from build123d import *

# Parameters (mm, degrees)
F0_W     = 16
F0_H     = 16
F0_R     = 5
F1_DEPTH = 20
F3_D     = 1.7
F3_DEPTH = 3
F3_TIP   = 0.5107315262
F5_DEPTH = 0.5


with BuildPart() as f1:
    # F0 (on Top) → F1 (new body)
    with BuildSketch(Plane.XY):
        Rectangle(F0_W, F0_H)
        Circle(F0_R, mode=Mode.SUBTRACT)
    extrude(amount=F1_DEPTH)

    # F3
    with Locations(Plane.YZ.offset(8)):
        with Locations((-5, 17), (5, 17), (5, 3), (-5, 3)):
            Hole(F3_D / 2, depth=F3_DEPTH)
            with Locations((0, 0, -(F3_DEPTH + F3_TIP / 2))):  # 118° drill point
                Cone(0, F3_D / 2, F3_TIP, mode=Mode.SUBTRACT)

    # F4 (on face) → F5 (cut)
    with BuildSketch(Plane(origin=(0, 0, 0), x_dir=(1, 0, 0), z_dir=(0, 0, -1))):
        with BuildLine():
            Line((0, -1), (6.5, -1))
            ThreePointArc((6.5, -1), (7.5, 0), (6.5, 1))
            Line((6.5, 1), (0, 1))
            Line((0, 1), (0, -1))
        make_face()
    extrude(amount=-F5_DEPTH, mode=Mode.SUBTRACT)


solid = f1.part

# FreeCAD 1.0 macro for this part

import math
import FreeCAD as App
import Part
import Sketcher
Q = App.Units.Quantity


def add_polygon(sketch, points):
    """Adds a closed chain of lines whose ends are joined by coincident constraints."""
    first, n = sketch.GeometryCount, len(points)
    for a, b in zip(points, points[1:] + points[:1]):
        sketch.addGeometry(Part.LineSegment(App.Vector(*a, 0), App.Vector(*b, 0)), False)
    for i in range(n):
        sketch.addConstraint(Sketcher.Constraint("Coincident", first + i, 2, first + (i + 1) % n, 1))

doc = App.newDocument("Part")
body = doc.addObject("PartDesign::Body", "Body")

# Sketch on XY plane
sketch1 = body.newObject("Sketcher::SketchObject", "Sketch")
sketch1.AttachmentSupport = (doc.getObject("XY_Plane"), [""])
sketch1.MapMode = "FlatFace"
add_polygon(sketch1, [(-8, 8), (-8, -8), (8, -8), (8, 8)])  # lines 0-3
sketch1.addGeometry(Part.Circle(App.Vector(0, 0, 0), App.Vector(0, 0, 1), 5), False)  # 4
sketch1.addConstraint([
    Sketcher.Constraint("Vertical", 0),
    Sketcher.Constraint("Horizontal", 1),
    Sketcher.Constraint("Vertical", 2),
    Sketcher.Constraint("Horizontal", 3),
    Sketcher.Constraint("Coincident", 4, 3, -1, 1),
    Sketcher.Constraint("Symmetric", 0, 2, 2, 2, -1, 1),
    Sketcher.Constraint("Equal", 3, 0),
    Sketcher.Constraint("Diameter", 4, Q("10 mm")),
    Sketcher.Constraint("DistanceX", 1, 1, 1, 2, Q("16 mm")),
])
pad1 = body.newObject("PartDesign::Pad", "Pad")
pad1.Profile = sketch1
pad1.Length = 20

# Sketch on YZ plane
sketch2 = body.newObject("Sketcher::SketchObject", "Sketch001")
sketch2.AttachmentSupport = (doc.getObject("YZ_Plane"), [""])
sketch2.MapMode = "FlatFace"
sketch2.AttachmentOffset = App.Placement(App.Vector(0, 0, 8), App.Rotation())
sketch2.addGeometry([
    Part.Circle(App.Vector(-5, 17, 0), App.Vector(0, 0, 1), 0.8),
    Part.Circle(App.Vector(5, 17, 0), App.Vector(0, 0, 1), 0.8),
    Part.Circle(App.Vector(5, 3, 0), App.Vector(0, 0, 1), 0.8),
    Part.Circle(App.Vector(-5, 3, 0), App.Vector(0, 0, 1), 0.8),
], False)
sketch2.addConstraint([
    Sketcher.Constraint("Equal", 0, 1),
    Sketcher.Constraint("Equal", 1, 2),
    Sketcher.Constraint("Equal", 2, 3),
    Sketcher.Constraint("Symmetric", 0, 3, 1, 3, -2),
    Sketcher.Constraint("Symmetric", 2, 3, 3, 3, -2),
    Sketcher.Constraint("Vertical", 1, 3, 2, 3),
    Sketcher.Constraint("Diameter", 0, Q("1.7 mm")),
    Sketcher.Constraint("DistanceX", 0, 3, -1, 1, Q("5 mm")),
    Sketcher.Constraint("DistanceY", -1, 1, 0, 3, Q("17 mm")),
    Sketcher.Constraint("DistanceY", -1, 1, 2, 3, Q("3 mm")),
])
doc.recompute()
hole = body.newObject("PartDesign::Hole", "Hole")
hole.Profile = sketch2
hole.ThreadType = "None"
hole.Diameter = 1.7
hole.DepthType = "Dimension"
hole.Depth = 3
hole.DrillPoint = "Angled"
hole.DrillPointAngle = 118

# Sketch on XY plane
sketch3 = body.newObject("Sketcher::SketchObject", "Sketch002")
sketch3.AttachmentSupport = (doc.getObject("XY_Plane"), [""])
sketch3.MapMode = "FlatFace"
sketch3.addGeometry([
    Part.LineSegment(App.Vector(0, 1, 0), App.Vector(6.5, 1, 0)),
    Part.ArcOfCircle(Part.Circle(App.Vector(6.5, 0, 0), App.Vector(0, 0, 1), 1), math.radians(-90), math.radians(90)),
    Part.LineSegment(App.Vector(6.5, -1, 0), App.Vector(0, -1, 0)),
    Part.LineSegment(App.Vector(0, -1, 0), App.Vector(0, 1, 0)),
], False)
sketch3.addConstraint([
    Sketcher.Constraint("Tangent", 0, 2, 1, 2),
    Sketcher.Constraint("Tangent", 1, 1, 2, 1),
    Sketcher.Constraint("Coincident", 2, 2, 3, 1),
    Sketcher.Constraint("Coincident", 3, 2, 0, 1),
    Sketcher.Constraint("Horizontal", 0),
    Sketcher.Constraint("Horizontal", 2),
    Sketcher.Constraint("Vertical", 3),
    Sketcher.Constraint("Symmetric", 2, 2, 3, 2, -1, 1),
    Sketcher.Constraint("Radius", 1, Q("1 mm")),
    Sketcher.Constraint("DistanceX", 0, 1, 0, 2, Q("6.5 mm")),
])
pocket1 = body.newObject("PartDesign::Pocket", "Pocket")
pocket1.Profile = sketch3
pocket1.Length = 0.5
pocket1.Reversed = True

doc.recompute()
